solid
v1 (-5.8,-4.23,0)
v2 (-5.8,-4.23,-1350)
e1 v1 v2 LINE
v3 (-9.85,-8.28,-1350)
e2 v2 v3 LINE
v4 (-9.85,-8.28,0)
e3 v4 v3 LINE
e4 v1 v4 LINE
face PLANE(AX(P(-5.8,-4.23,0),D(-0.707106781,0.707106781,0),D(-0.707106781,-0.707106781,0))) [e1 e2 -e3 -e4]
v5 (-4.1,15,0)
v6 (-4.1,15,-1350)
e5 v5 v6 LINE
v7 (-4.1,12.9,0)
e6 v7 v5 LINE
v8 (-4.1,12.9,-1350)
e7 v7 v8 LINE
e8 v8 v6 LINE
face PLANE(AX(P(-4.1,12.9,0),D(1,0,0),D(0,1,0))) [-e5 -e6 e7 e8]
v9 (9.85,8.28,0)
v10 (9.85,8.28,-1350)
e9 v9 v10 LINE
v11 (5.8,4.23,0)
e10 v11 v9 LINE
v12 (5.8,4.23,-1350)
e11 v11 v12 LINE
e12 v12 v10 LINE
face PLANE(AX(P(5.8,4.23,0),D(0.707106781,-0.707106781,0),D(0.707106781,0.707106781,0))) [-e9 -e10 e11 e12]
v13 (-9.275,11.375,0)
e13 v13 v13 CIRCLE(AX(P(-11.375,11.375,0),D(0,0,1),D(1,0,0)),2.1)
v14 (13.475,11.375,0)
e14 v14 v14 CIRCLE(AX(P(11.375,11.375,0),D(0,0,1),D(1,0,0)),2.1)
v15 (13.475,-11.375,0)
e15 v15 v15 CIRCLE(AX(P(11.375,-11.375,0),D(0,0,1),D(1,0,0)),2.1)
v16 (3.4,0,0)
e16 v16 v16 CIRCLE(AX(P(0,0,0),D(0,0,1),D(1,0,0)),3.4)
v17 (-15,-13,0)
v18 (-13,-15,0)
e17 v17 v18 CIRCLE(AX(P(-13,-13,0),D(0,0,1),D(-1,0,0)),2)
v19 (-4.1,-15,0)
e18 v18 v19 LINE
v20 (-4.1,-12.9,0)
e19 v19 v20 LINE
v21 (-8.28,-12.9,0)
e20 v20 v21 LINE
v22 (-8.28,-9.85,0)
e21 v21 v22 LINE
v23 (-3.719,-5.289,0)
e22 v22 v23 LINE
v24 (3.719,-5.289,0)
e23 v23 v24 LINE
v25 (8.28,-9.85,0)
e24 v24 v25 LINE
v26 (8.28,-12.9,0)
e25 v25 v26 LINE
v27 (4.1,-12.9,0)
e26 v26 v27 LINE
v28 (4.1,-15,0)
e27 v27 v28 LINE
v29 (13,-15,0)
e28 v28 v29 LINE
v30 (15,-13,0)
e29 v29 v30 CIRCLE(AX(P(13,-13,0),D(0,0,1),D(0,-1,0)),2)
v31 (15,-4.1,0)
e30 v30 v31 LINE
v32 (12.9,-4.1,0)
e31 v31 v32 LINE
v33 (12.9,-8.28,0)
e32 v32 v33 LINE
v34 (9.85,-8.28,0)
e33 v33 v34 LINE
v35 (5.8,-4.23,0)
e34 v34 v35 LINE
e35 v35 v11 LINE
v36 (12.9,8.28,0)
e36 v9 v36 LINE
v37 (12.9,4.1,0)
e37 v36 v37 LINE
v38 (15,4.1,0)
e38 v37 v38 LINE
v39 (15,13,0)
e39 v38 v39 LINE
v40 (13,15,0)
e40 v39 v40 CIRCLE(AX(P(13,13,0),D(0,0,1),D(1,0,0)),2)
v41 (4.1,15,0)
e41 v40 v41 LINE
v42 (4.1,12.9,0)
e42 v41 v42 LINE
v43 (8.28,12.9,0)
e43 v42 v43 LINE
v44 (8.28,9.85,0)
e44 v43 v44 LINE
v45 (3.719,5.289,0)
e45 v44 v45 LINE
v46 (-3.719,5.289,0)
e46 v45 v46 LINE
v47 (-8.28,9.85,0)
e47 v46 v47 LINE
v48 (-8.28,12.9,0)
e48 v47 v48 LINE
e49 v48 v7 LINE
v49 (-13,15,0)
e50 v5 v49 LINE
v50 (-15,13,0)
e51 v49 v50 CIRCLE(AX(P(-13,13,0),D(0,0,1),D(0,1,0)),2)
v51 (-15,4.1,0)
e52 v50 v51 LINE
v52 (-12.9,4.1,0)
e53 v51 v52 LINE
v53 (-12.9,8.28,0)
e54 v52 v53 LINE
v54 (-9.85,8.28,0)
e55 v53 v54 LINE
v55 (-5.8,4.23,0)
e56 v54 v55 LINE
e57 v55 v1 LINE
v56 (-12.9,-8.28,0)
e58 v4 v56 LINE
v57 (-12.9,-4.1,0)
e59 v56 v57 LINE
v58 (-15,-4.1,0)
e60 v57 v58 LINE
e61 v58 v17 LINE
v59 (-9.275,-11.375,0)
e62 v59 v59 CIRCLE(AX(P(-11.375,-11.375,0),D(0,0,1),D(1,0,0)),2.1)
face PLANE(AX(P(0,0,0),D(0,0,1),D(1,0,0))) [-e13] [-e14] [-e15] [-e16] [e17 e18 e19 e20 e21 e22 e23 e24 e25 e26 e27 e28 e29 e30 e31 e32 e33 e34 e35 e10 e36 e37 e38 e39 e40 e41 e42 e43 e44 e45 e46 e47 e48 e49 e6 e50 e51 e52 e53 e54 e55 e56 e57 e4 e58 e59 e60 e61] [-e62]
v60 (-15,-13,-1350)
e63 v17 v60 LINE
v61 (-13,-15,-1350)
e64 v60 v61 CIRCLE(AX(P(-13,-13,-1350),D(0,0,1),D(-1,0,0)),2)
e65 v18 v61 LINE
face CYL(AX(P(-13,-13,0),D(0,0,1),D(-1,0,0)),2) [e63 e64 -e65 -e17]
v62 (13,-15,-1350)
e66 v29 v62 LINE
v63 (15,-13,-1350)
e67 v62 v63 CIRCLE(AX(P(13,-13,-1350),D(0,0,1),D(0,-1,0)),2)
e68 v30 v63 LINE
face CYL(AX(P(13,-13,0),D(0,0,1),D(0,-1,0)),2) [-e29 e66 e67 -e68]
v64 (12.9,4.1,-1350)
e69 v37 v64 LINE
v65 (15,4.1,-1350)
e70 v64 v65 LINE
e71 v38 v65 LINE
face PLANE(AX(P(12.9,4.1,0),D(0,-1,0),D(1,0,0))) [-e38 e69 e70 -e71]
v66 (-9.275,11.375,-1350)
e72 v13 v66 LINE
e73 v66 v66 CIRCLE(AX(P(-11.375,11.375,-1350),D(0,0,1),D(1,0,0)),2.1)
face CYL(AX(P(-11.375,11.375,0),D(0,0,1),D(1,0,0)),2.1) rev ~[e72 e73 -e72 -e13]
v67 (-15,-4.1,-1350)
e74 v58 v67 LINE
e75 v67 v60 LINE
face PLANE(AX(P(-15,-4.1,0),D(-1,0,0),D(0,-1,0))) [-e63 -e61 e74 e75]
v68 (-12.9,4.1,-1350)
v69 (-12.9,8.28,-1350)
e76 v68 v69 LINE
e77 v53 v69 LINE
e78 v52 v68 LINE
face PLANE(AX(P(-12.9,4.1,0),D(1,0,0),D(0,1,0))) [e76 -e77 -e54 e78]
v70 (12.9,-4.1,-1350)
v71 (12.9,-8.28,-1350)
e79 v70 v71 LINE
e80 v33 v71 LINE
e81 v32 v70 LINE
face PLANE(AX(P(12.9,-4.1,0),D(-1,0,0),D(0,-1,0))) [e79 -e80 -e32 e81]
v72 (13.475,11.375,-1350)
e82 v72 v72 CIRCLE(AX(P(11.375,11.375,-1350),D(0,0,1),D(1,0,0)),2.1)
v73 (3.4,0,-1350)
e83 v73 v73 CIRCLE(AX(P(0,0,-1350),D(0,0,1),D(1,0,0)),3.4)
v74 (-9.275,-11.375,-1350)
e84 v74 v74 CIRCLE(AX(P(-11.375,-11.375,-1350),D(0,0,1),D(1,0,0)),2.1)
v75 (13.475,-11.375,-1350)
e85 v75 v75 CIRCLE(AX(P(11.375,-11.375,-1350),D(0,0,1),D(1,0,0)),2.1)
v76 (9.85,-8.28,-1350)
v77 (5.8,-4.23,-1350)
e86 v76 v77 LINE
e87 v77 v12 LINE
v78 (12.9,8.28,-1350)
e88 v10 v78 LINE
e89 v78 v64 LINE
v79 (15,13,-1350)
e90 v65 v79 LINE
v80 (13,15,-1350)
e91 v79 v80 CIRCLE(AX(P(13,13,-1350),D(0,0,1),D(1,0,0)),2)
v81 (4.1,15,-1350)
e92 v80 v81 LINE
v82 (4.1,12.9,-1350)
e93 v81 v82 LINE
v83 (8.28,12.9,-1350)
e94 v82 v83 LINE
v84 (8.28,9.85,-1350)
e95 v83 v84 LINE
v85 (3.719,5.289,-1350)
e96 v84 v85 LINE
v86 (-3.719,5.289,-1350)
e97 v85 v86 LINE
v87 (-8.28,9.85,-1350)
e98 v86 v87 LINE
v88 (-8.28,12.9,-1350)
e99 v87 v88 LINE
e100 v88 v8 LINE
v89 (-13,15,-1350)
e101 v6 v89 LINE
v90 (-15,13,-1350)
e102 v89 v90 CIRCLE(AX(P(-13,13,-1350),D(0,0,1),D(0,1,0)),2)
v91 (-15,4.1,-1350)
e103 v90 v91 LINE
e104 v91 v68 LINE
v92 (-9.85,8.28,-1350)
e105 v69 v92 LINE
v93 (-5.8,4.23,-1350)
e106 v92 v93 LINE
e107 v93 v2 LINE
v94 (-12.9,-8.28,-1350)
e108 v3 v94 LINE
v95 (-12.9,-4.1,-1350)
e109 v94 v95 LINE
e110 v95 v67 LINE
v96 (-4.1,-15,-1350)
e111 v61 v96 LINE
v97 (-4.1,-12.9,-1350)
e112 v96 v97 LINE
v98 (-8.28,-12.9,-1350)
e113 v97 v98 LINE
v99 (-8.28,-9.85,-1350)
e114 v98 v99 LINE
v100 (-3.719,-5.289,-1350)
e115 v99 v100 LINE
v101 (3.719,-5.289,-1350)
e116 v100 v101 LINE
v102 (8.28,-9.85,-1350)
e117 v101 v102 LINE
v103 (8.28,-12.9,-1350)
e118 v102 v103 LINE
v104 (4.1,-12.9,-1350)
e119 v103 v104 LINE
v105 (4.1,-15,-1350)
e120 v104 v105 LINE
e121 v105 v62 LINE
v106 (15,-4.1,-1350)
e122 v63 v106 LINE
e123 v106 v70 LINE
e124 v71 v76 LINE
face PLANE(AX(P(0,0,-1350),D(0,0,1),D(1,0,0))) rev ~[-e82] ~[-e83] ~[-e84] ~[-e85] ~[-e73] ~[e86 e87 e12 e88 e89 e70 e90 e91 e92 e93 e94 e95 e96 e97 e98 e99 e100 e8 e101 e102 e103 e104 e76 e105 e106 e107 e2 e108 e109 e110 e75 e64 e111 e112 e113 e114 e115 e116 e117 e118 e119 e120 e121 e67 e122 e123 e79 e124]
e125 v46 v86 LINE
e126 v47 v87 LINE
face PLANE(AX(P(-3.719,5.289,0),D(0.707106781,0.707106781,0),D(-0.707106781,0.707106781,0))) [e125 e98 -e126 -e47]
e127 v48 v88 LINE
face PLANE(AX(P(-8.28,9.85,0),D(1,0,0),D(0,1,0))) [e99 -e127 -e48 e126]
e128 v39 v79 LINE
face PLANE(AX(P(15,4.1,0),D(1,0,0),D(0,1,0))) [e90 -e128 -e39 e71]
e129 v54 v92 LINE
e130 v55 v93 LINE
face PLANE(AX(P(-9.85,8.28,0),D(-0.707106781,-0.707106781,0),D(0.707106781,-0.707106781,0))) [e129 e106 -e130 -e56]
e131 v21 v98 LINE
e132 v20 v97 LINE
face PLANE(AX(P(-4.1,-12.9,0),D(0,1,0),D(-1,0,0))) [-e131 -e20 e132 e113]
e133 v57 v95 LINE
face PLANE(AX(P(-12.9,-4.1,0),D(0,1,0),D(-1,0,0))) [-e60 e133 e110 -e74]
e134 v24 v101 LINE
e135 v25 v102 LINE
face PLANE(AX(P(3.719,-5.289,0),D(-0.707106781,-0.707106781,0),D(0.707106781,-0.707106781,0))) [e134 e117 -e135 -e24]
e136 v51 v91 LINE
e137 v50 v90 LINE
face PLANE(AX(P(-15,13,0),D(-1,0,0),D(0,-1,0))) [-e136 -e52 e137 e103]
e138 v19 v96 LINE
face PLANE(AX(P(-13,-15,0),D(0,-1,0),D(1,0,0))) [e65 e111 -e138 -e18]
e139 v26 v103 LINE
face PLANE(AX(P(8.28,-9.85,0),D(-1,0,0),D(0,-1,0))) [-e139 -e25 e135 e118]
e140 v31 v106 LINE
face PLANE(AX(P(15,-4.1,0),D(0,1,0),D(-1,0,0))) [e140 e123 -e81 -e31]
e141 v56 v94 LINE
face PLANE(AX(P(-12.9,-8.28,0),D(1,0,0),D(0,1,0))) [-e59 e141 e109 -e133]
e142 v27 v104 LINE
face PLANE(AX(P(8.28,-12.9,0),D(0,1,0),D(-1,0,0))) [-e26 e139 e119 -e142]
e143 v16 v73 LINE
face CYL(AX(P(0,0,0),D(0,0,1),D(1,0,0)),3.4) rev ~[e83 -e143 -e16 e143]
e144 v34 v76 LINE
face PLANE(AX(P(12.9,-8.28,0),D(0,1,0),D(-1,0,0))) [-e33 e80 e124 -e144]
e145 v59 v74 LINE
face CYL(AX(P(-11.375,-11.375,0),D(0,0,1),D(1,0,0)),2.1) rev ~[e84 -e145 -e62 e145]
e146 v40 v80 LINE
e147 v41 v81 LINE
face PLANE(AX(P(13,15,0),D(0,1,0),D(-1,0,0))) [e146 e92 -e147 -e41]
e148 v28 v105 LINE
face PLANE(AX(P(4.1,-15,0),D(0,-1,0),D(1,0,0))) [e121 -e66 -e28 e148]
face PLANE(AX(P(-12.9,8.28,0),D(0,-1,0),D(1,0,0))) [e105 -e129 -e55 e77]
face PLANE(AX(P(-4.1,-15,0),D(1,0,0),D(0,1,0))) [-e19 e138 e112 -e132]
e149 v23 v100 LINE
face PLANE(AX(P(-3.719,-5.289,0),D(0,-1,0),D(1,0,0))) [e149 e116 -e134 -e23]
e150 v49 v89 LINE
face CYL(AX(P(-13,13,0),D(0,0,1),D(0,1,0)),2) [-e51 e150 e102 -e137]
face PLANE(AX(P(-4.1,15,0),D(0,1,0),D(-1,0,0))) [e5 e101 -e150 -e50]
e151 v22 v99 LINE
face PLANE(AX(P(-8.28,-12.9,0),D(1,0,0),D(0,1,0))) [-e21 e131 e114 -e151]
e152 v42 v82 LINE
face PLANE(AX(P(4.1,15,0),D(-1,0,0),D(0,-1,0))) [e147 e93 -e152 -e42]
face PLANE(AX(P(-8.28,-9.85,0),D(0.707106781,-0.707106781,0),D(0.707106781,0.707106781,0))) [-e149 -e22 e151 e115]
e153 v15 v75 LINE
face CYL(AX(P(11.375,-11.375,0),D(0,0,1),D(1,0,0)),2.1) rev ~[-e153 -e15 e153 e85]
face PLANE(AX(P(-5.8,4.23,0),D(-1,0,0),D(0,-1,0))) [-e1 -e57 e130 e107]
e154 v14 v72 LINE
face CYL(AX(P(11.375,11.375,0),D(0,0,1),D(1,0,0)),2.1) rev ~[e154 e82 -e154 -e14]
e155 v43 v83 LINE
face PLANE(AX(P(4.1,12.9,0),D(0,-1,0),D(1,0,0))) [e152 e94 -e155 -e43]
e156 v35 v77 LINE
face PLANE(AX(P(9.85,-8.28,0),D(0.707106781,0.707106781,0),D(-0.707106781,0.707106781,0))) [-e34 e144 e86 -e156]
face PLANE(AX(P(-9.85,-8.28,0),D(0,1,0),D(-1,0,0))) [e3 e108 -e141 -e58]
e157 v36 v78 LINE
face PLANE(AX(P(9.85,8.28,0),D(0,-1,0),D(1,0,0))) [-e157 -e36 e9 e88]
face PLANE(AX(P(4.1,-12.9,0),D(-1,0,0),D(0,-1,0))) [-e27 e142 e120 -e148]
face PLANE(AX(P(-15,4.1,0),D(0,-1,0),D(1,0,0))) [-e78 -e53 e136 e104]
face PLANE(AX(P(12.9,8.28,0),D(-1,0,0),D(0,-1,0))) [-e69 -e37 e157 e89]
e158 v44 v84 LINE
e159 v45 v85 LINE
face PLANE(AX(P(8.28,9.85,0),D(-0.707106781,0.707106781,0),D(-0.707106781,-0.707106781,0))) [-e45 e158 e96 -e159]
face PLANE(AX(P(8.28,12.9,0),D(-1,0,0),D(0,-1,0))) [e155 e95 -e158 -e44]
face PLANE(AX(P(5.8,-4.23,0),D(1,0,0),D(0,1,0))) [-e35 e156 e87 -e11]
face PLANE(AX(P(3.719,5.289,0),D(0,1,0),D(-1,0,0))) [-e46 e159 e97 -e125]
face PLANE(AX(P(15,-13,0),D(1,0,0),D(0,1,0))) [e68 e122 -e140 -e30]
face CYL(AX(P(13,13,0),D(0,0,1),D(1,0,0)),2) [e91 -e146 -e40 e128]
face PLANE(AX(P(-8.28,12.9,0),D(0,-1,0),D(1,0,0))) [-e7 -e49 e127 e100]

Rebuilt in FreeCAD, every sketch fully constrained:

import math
import FreeCAD as App
import Part
import Sketcher

V = App.Vector

doc = App.newDocument("Part")
body = doc.addObject("PartDesign::Body", "Body")

sketch1 = body.newObject("Sketcher::SketchObject", "Sketch")
sketch1.AttachmentSupport = (doc.getObject("XY_Plane"), [""])
sketch1.MapMode = "FlatFace"
sketch1.addGeometry([
    Part.LineSegment(V(-15, 13, 0), V(-15, 4.1, 0)),
    Part.LineSegment(V(-15, 4.1, 0), V(-12.9, 4.1, 0)),
    Part.LineSegment(V(-12.9, 4.1, 0), V(-12.9, 8.3, 0)),
    Part.LineSegment(V(-12.9, 8.3, 0), V(-9.8, 8.3, 0)),
    Part.LineSegment(V(-9.8, 8.3, 0), V(-5.8, 4.2, 0)),
    Part.LineSegment(V(-5.8, 4.2, 0), V(-5.8, -4.2, 0)),
    Part.LineSegment(V(-5.8, -4.2, 0), V(-9.8, -8.3, 0)),
    Part.LineSegment(V(-9.8, -8.3, 0), V(-12.9, -8.3, 0)),
    Part.LineSegment(V(-12.9, -8.3, 0), V(-12.9, -4.1, 0)),
    Part.LineSegment(V(-12.9, -4.1, 0), V(-15, -4.1, 0)),
    Part.LineSegment(V(-15, -4.1, 0), V(-15, -13, 0)),
    Part.ArcOfCircle(Part.Circle(V(-13, -13, 0), V(0, 0, 1), 2), math.radians(180), math.radians(270)),
    Part.LineSegment(V(-13, -15, 0), V(-4.1, -15, 0)),
    Part.LineSegment(V(-4.1, -15, 0), V(-4.1, -12.9, 0)),
    Part.LineSegment(V(-4.1, -12.9, 0), V(-8.3, -12.9, 0)),
    Part.LineSegment(V(-8.3, -12.9, 0), V(-8.3, -9.8, 0)),
    Part.LineSegment(V(-8.3, -9.8, 0), V(-3.7, -5.3, 0)),
    Part.LineSegment(V(-3.7, -5.3, 0), V(3.7, -5.3, 0)),
    Part.LineSegment(V(3.7, -5.3, 0), V(8.3, -9.8, 0)),
    Part.LineSegment(V(8.3, -9.8, 0), V(8.3, -12.9, 0)),
    Part.LineSegment(V(8.3, -12.9, 0), V(4.1, -12.9, 0)),
    Part.LineSegment(V(4.1, -12.9, 0), V(4.1, -15, 0)),
    Part.LineSegment(V(4.1, -15, 0), V(13, -15, 0)),
    Part.ArcOfCircle(Part.Circle(V(13, -13, 0), V(0, 0, 1), 2), math.radians(-90), math.radians(0)),
    Part.LineSegment(V(15, -13, 0), V(15, -4.1, 0)),
    Part.LineSegment(V(15, -4.1, 0), V(12.9, -4.1, 0)),
    Part.LineSegment(V(12.9, -4.1, 0), V(12.9, -8.3, 0)),
    Part.LineSegment(V(12.9, -8.3, 0), V(9.8, -8.3, 0)),
    Part.LineSegment(V(9.8, -8.3, 0), V(5.8, -4.2, 0)),
    Part.LineSegment(V(5.8, -4.2, 0), V(5.8, 4.2, 0)),
    Part.LineSegment(V(5.8, 4.2, 0), V(9.8, 8.3, 0)),
    Part.LineSegment(V(9.8, 8.3, 0), V(12.9, 8.3, 0)),
    Part.LineSegment(V(12.9, 8.3, 0), V(12.9, 4.1, 0)),
    Part.LineSegment(V(12.9, 4.1, 0), V(15, 4.1, 0)),
    Part.LineSegment(V(15, 4.1, 0), V(15, 13, 0)),
    Part.ArcOfCircle(Part.Circle(V(13, 13, 0), V(0, 0, 1), 2), math.radians(0), math.radians(90)),
    Part.LineSegment(V(13, 15, 0), V(4.1, 15, 0)),
    Part.LineSegment(V(4.1, 15, 0), V(4.1, 12.9, 0)),
    Part.LineSegment(V(4.1, 12.9, 0), V(8.3, 12.9, 0)),
    Part.LineSegment(V(8.3, 12.9, 0), V(8.3, 9.8, 0)),
    Part.LineSegment(V(8.3, 9.8, 0), V(3.7, 5.3, 0)),
    Part.LineSegment(V(3.7, 5.3, 0), V(-3.7, 5.3, 0)),
    Part.LineSegment(V(-3.7, 5.3, 0), V(-8.3, 9.8, 0)),
    Part.LineSegment(V(-8.3, 9.8, 0), V(-8.3, 12.9, 0)),
    Part.LineSegment(V(-8.3, 12.9, 0), V(-4.1, 12.9, 0)),
    Part.LineSegment(V(-4.1, 12.9, 0), V(-4.1, 15, 0)),
    Part.LineSegment(V(-4.1, 15, 0), V(-13, 15, 0)),
    Part.ArcOfCircle(Part.Circle(V(-13, 13, 0), V(0, 0, 1), 2), math.radians(90), math.radians(180)),
    Part.Circle(V(-11.4, -11.4, 0), V(0, 0, 1), 2.1),
    Part.Circle(V(11.4, -11.4, 0), V(0, 0, 1), 2.1),
    Part.Circle(V(-11.4, 11.4, 0), V(0, 0, 1), 2.1),
    Part.Circle(V(0, 0, 0), V(0, 0, 1), 3.4),
    Part.Circle(V(11.4, 11.4, 0), V(0, 0, 1), 2.1),
], False)
sketch1.addConstraint([
    Sketcher.Constraint("Coincident", 0, 2, 1, 1),
    Sketcher.Constraint("Coincident", 1, 2, 2, 1),
    Sketcher.Constraint("Coincident", 2, 2, 3, 1),
    Sketcher.Constraint("Coincident", 3, 2, 4, 1),
    Sketcher.Constraint("Coincident", 4, 2, 5, 1),
    Sketcher.Constraint("Coincident", 5, 2, 6, 1),
    Sketcher.Constraint("Coincident", 6, 2, 7, 1),
    Sketcher.Constraint("Coincident", 7, 2, 8, 1),
    Sketcher.Constraint("Coincident", 8, 2, 9, 1),
    Sketcher.Constraint("Coincident", 9, 2, 10, 1),
    Sketcher.Constraint("Tangent", 10, 2, 11, 1),
    Sketcher.Constraint("Tangent", 11, 2, 12, 1),
    Sketcher.Constraint("Coincident", 12, 2, 13, 1),
    Sketcher.Constraint("Coincident", 13, 2, 14, 1),
    Sketcher.Constraint("Coincident", 14, 2, 15, 1),
    Sketcher.Constraint("Coincident", 15, 2, 16, 1),
    Sketcher.Constraint("Coincident", 16, 2, 17, 1),
    Sketcher.Constraint("Coincident", 17, 2, 18, 1),
    Sketcher.Constraint("Coincident", 18, 2, 19, 1),
    Sketcher.Constraint("Coincident", 19, 2, 20, 1),
    Sketcher.Constraint("Coincident", 20, 2, 21, 1),
    Sketcher.Constraint("Coincident", 21, 2, 22, 1),
    Sketcher.Constraint("Tangent", 22, 2, 23, 1),
    Sketcher.Constraint("Tangent", 23, 2, 24, 1),
    Sketcher.Constraint("Coincident", 24, 2, 25, 1),
    Sketcher.Constraint("Coincident", 25, 2, 26, 1),
    Sketcher.Constraint("Coincident", 26, 2, 27, 1),
    Sketcher.Constraint("Coincident", 27, 2, 28, 1),
    Sketcher.Constraint("Coincident", 28, 2, 29, 1),
    Sketcher.Constraint("Coincident", 29, 2, 30, 1),
    Sketcher.Constraint("Coincident", 30, 2, 31, 1),
    Sketcher.Constraint("Coincident", 31, 2, 32, 1),
    Sketcher.Constraint("Coincident", 32, 2, 33, 1),
    Sketcher.Constraint("Coincident", 33, 2, 34, 1),
    Sketcher.Constraint("Tangent", 34, 2, 35, 1),
    Sketcher.Constraint("Tangent", 35, 2, 36, 1),
    Sketcher.Constraint("Coincident", 36, 2, 37, 1),
    Sketcher.Constraint("Coincident", 37, 2, 38, 1),
    Sketcher.Constraint("Coincident", 38, 2, 39, 1),
    Sketcher.Constraint("Coincident", 39, 2, 40, 1),
    Sketcher.Constraint("Coincident", 40, 2, 41, 1),
    Sketcher.Constraint("Coincident", 41, 2, 42, 1),
    Sketcher.Constraint("Coincident", 42, 2, 43, 1),
    Sketcher.Constraint("Coincident", 43, 2, 44, 1),
    Sketcher.Constraint("Coincident", 44, 2, 45, 1),
    Sketcher.Constraint("Coincident", 45, 2, 46, 1),
    Sketcher.Constraint("Tangent", 46, 2, 47, 1),
    Sketcher.Constraint("Tangent", 47, 2, 0, 1),
    Sketcher.Constraint("Vertical", 0),
    Sketcher.Constraint("Horizontal", 1),
    Sketcher.Constraint("Vertical", 2),
    Sketcher.Constraint("Horizontal", 3),
    Sketcher.Constraint("Vertical", 5),
    Sketcher.Constraint("Horizontal", 7),
    Sketcher.Constraint("Vertical", 8),
    Sketcher.Constraint("Horizontal", 9),
    Sketcher.Constraint("Vertical", 10),
    Sketcher.Constraint("Horizontal", 12),
    Sketcher.Constraint("Vertical", 13),
    Sketcher.Constraint("Horizontal", 14),
    Sketcher.Constraint("Vertical", 15),
    Sketcher.Constraint("Horizontal", 17),
    Sketcher.Constraint("Vertical", 19),
    Sketcher.Constraint("Horizontal", 20),
    Sketcher.Constraint("Vertical", 21),
    Sketcher.Constraint("Horizontal", 22),
    Sketcher.Constraint("Vertical", 24),
    Sketcher.Constraint("Horizontal", 25),
    Sketcher.Constraint("Vertical", 26),
    Sketcher.Constraint("Horizontal", 27),
    Sketcher.Constraint("Vertical", 29),
    Sketcher.Constraint("Horizontal", 31),
    Sketcher.Constraint("Vertical", 32),
    Sketcher.Constraint("Horizontal", 33),
    Sketcher.Constraint("Vertical", 34),
    Sketcher.Constraint("Horizontal", 36),
    Sketcher.Constraint("Vertical", 37),
    Sketcher.Constraint("Horizontal", 38),
    Sketcher.Constraint("Vertical", 39),
    Sketcher.Constraint("Horizontal", 41),
    Sketcher.Constraint("Vertical", 43),
    Sketcher.Constraint("Horizontal", 44),
    Sketcher.Constraint("Vertical", 45),
    Sketcher.Constraint("Horizontal", 46),
    Sketcher.Constraint("Coincident", 51, 3, -1, 1),
    Sketcher.Constraint("Equal", 11, 23),
    Sketcher.Constraint("Equal", 23, 35),
    Sketcher.Constraint("Equal", 35, 47),
    Sketcher.Constraint("Equal", 48, 49),
    Sketcher.Constraint("Equal", 49, 50),
    Sketcher.Constraint("Equal", 50, 52),
    Sketcher.Constraint("Symmetric", 11, 3, 35, 3, -1, 1),
    Sketcher.Constraint("Symmetric", 23, 3, 47, 3, -1, 1),
    Sketcher.Constraint("Symmetric", 49, 3, 50, 3, -1, 1),
    Sketcher.Constraint("Symmetric", 48, 3, 52, 3, -1, 1),
    Sketcher.Constraint("Symmetric", 1, 2, 25, 2, -1, 1),
    Sketcher.Constraint("Symmetric", 3, 2, 27, 2, -1, 1),
    Sketcher.Constraint("Symmetric", 4, 2, 28, 2, -1, 1),
    Sketcher.Constraint("Symmetric", 6, 2, 30, 2, -1, 1),
    Sketcher.Constraint("Symmetric", 8, 2, 32, 2, -1, 1),
    Sketcher.Constraint("Symmetric", 13, 2, 37, 2, -1, 1),
    Sketcher.Constraint("Symmetric", 15, 2, 39, 2, -1, 1),
    Sketcher.Constraint("Symmetric", 16, 2, 40, 2, -1, 1),
    Sketcher.Constraint("Symmetric", 18, 2, 42, 2, -1, 1),
    Sketcher.Constraint("Symmetric", 20, 2, 44, 2, -1, 1),
    Sketcher.Constraint("Symmetric", 11, 3, 23, 3, -2),
    Sketcher.Constraint("Symmetric", 48, 3, 49, 3, -2),
    Sketcher.Constraint("Symmetric", 15, 2, 18, 2, -2),
    Sketcher.Constraint("Symmetric", 13, 2, 20, 2, -2),
    Sketcher.Constraint("Symmetric", 8, 2, 25, 2, -2),
    Sketcher.Constraint("Symmetric", 6, 2, 27, 2, -2),
    Sketcher.Constraint("Perpendicular", 4, 6),
    Sketcher.Constraint("Parallel", 6, 16),
    Sketcher.Constraint("Perpendicular", 16, 18),
    Sketcher.Constraint("Perpendicular", 28, 30),
    Sketcher.Constraint("Perpendicular", 40, 42),
    Sketcher.Constraint("Horizontal", 5, 2, 28, 2),
    Sketcher.Constraint("Equal", 46, 0),
    Sketcher.Constraint("Equal", 44, 2),
    Sketcher.Constraint("Equal", 33, 13),
    Sketcher.Constraint("Equal", 31, 15),
    Sketcher.Constraint("Radius", 11, 2.0),
    Sketcher.Constraint("Diameter", 48, 4.2),
    Sketcher.Constraint("Diameter", 51, 6.8),
    Sketcher.Constraint("DistanceX", 1, 1, 1, 2, 2.1),
    Sketcher.Constraint("DistanceX", 12, 1, 12, 2, 8.9),
    Sketcher.Constraint("DistanceX", 11, 3, -1, 1, 13.0),
    Sketcher.Constraint("DistanceY", 11, 3, -1, 1, 13.0),
    Sketcher.Constraint("DistanceX", 3, 1, 3, 2, 3.05),
    Sketcher.Constraint("DistanceX", 14, 2, 14, 1, 4.18),
    Sketcher.Constraint("DistanceY", 5, 2, 5, 1, 8.46),
    Sketcher.Constraint("DistanceX", 17, 1, 17, 2, 7.438),
    Sketcher.Constraint("DistanceX", 48, 3, 49, 3, 22.75),
    Sketcher.Constraint("DistanceY", 48, 3, 50, 3, 22.75),
])
pad1 = body.newObject("PartDesign::Pad", "Pad")
pad1.Profile = sketch1
pad1.Length = 1350
pad1.Reversed = True

doc.recompute()
